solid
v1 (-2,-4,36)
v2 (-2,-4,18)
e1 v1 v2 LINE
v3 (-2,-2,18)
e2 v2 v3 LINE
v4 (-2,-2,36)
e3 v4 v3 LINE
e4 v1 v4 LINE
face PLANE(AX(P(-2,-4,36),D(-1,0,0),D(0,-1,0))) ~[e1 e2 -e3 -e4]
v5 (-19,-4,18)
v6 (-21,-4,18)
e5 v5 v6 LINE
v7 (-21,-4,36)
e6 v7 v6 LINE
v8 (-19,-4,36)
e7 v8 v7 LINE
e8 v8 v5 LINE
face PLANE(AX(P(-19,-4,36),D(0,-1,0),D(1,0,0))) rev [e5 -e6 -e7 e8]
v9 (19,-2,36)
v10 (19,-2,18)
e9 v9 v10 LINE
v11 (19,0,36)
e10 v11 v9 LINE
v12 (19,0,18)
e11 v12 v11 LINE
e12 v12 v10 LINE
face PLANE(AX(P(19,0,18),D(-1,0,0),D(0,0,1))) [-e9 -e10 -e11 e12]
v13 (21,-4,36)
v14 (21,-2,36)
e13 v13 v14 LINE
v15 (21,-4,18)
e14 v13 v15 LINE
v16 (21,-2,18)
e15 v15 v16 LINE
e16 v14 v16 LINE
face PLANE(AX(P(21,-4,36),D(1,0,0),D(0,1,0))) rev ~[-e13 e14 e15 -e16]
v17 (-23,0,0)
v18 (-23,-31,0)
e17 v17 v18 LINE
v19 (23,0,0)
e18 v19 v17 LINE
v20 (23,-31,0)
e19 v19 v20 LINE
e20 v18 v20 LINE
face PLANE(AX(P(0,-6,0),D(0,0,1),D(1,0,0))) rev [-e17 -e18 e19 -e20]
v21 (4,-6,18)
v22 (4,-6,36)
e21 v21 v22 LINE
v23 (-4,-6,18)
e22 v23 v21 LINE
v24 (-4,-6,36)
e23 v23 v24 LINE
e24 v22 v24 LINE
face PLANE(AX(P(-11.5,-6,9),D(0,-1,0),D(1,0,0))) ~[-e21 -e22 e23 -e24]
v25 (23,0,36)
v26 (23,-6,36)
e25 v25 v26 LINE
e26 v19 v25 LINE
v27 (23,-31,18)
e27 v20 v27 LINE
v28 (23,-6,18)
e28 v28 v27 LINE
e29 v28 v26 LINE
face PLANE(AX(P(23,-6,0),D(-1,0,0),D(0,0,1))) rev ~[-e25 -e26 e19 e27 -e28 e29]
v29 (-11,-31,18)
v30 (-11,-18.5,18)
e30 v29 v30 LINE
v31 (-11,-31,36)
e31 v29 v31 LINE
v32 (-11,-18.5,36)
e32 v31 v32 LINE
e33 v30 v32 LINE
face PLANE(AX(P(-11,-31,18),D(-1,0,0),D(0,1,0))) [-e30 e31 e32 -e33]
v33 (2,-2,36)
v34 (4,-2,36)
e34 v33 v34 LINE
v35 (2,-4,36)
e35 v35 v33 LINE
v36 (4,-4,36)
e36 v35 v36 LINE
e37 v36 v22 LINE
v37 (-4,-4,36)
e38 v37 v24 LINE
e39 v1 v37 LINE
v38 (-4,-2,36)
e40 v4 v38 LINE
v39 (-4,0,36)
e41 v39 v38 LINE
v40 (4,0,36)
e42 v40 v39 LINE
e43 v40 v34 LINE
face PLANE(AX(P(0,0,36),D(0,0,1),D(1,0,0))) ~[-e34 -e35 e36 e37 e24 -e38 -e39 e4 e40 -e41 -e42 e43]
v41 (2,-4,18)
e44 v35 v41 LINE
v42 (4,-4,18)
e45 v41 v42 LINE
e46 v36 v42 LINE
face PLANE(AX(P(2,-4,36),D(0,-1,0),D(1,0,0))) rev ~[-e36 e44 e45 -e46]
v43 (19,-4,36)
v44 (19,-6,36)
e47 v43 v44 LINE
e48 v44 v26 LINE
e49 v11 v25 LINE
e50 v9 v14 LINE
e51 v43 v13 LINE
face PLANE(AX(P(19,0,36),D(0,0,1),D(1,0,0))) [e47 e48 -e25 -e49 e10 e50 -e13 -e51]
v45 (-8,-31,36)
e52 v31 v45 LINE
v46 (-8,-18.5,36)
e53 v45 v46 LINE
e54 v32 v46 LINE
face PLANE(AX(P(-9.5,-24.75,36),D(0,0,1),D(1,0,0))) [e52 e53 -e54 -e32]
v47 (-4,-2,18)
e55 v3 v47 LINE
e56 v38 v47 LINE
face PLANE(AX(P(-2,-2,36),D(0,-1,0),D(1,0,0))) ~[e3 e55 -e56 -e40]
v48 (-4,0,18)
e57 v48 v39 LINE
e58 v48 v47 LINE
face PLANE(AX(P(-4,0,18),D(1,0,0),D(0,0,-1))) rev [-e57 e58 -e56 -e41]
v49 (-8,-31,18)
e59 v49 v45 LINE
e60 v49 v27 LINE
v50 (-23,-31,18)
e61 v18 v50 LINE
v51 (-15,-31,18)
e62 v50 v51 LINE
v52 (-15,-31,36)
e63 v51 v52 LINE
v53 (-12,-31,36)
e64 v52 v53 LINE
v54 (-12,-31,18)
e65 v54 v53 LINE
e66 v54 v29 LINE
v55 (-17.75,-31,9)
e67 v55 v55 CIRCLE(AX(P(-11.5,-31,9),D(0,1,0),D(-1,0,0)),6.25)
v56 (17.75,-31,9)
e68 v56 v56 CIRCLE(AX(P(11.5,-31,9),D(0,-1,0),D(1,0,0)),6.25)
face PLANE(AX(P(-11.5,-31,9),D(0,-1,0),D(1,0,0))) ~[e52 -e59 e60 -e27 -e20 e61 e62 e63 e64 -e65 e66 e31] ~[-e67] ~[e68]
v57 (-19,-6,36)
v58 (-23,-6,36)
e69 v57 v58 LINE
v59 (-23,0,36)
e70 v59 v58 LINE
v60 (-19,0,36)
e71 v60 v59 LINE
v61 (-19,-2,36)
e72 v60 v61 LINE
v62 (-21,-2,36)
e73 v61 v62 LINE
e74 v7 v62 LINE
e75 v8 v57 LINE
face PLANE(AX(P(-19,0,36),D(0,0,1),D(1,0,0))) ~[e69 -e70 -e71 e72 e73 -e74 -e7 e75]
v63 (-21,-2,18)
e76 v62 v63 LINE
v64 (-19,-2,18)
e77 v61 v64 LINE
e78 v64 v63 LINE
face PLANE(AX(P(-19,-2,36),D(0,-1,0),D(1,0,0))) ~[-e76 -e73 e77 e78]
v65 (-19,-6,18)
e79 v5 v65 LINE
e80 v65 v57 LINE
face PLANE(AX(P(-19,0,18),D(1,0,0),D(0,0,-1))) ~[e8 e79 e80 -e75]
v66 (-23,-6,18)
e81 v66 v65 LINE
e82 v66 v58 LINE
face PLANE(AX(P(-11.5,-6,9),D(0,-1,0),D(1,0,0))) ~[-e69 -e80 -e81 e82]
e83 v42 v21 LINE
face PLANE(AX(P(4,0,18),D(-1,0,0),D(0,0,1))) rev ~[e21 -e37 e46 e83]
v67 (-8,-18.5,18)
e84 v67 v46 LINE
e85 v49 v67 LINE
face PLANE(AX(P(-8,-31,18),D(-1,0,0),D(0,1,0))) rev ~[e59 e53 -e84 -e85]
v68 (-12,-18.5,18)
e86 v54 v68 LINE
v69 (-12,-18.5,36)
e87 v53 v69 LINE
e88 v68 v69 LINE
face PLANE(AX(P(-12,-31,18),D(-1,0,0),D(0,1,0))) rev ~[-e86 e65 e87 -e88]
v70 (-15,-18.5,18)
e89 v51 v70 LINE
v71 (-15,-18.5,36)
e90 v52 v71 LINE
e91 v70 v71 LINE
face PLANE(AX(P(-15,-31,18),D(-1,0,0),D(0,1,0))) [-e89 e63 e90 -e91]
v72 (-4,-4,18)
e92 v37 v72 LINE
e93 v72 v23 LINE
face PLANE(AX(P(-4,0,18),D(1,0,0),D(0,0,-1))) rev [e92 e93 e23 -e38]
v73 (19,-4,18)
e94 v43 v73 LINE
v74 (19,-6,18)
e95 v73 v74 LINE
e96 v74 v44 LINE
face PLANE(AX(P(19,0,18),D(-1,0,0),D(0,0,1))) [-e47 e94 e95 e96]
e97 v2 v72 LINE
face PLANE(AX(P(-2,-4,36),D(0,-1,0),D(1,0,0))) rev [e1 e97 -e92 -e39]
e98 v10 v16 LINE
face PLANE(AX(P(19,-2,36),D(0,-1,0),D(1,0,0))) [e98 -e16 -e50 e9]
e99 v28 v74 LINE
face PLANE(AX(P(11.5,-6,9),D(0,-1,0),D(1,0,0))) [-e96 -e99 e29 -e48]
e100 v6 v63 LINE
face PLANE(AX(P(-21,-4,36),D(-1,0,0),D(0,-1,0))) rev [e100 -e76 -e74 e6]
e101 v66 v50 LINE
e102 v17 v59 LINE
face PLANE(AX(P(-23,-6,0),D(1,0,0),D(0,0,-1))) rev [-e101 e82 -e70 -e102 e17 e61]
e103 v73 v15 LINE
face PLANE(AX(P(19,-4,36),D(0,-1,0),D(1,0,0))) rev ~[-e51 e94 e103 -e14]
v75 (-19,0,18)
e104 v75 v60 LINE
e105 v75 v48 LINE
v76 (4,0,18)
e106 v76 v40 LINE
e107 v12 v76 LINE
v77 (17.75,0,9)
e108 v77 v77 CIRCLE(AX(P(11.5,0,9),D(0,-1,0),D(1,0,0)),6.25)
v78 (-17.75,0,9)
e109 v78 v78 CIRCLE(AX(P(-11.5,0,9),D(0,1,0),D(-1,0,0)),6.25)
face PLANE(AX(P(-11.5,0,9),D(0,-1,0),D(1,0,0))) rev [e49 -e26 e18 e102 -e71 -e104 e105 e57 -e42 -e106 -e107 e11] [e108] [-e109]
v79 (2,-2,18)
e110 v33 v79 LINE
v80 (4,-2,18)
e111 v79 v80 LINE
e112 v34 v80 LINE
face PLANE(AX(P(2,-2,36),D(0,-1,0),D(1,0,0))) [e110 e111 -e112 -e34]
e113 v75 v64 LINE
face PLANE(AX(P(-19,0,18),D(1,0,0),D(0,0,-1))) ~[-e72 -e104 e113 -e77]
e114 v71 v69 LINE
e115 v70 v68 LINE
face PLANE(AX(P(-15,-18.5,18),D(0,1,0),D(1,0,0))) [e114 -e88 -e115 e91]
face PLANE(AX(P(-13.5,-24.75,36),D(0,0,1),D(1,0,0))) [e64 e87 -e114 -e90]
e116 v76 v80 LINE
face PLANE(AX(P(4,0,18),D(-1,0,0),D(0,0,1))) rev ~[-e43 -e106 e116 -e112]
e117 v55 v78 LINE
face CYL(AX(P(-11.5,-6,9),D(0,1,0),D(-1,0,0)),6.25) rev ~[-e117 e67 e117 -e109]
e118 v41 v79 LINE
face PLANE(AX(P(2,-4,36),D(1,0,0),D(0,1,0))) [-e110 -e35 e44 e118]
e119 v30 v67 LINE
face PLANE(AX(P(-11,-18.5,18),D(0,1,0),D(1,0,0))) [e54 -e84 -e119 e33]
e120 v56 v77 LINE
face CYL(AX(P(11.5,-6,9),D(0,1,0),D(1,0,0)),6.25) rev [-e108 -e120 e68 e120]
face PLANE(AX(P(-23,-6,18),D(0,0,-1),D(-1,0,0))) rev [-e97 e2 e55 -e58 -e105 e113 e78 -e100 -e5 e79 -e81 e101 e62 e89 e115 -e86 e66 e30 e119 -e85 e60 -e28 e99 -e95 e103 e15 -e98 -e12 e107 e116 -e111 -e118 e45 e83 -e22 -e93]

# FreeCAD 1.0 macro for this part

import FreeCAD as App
import Part
import Sketcher
Q = App.Units.Quantity

doc = App.newDocument("Part")
params = doc.addObject("Spreadsheet::Sheet", "Params")
for row, (alias, value) in enumerate([
    ("sketch1_diameter", "12.5 mm"),
    ("sketch1_width", "23 mm"),
    ("sketch1_width2", "4 mm"),
    ("sketch1_height", "36 mm"),
    ("sketch1_height2", "18 mm"),
    ("pad1_length", "6 mm"),
    ("sketch2_width", "2 mm"),
    ("pocket1_length", "18 mm"),
    ("sketch3_diameter", "12.5 mm"),
    ("sketch3_width", "23 mm"),
    ("sketch3_height", "18 mm"),
    ("pad2_length", "25 mm"),
    ("sketch4_width", "3 mm"),
    ("sketch4_height", "12.5 mm"),
    ("pad3_length", "18 mm"),
], start=1):
    params.set(f"A{row}", alias)
    params.set(f"B{row}", "=" + value)
    params.setAlias(f"B{row}", alias)

body = doc.addObject("PartDesign::Body", "Body")

sketch1 = body.newObject("Sketcher::SketchObject", "Sketch")
sketch1.AttachmentSupport = (doc.getObject("XZ_Plane"), [""])
sketch1.MapMode = "FlatFace"
sketch1.addGeometry([
    Part.LineSegment(App.Vector(0, 0, 0), App.Vector(23, 0, 0)),
    Part.LineSegment(App.Vector(23, 0, 0), App.Vector(23, 36, 0)),
    Part.LineSegment(App.Vector(23, 36, 0), App.Vector(19, 36, 0)),
    Part.LineSegment(App.Vector(19, 36, 0), App.Vector(19, 18, 0)),
    Part.LineSegment(App.Vector(19, 18, 0), App.Vector(4, 18, 0)),
    Part.LineSegment(App.Vector(4, 18, 0), App.Vector(4, 36, 0)),
    Part.LineSegment(App.Vector(4, 36, 0), App.Vector(0, 36, 0)),
    Part.LineSegment(App.Vector(0, 36, 0), App.Vector(0, 0, 0)),
    Part.Circle(App.Vector(11.5, 9, 0), App.Vector(0, 0, 1), 6.2),
], False)
sketch1.addConstraint([
    Sketcher.Constraint("Coincident", 0, 2, 1, 1),
    Sketcher.Constraint("Coincident", 1, 2, 2, 1),
    Sketcher.Constraint("Coincident", 2, 2, 3, 1),
    Sketcher.Constraint("Coincident", 3, 2, 4, 1),
    Sketcher.Constraint("Coincident", 4, 2, 5, 1),
    Sketcher.Constraint("Coincident", 5, 2, 6, 1),
    Sketcher.Constraint("Coincident", 6, 2, 7, 1),
    Sketcher.Constraint("Coincident", 7, 2, 0, 1),
    Sketcher.Constraint("Horizontal", 0),
    Sketcher.Constraint("Vertical", 1),
    Sketcher.Constraint("Horizontal", 2),
    Sketcher.Constraint("Vertical", 3),
    Sketcher.Constraint("Horizontal", 4),
    Sketcher.Constraint("Vertical", 5),
    Sketcher.Constraint("Horizontal", 6),
    Sketcher.Constraint("Vertical", 7),
    Sketcher.Constraint("Coincident", 7, 2, -1, 1),
    Sketcher.Constraint("Horizontal", 2, 2, 5, 2),
    Sketcher.Constraint("Equal", 2, 6),
    Sketcher.Constraint("Diameter", 8, Q("12.5 mm")),
    Sketcher.Constraint("DistanceX", 0, 1, 0, 2, Q("23 mm")),
    Sketcher.Constraint("DistanceX", 2, 2, 2, 1, Q("4 mm")),
    Sketcher.Constraint("DistanceY", 1, 1, 1, 2, Q("36 mm")),
    Sketcher.Constraint("DistanceY", 3, 2, 3, 1, Q("18 mm")),
    Sketcher.Constraint("DistanceY", -1, 1, 8, 3, Q("9 mm")),
    Sketcher.Constraint("DistanceX", -1, 1, 8, 3, Q("11.5 mm")),
])
sketch1.setExpression("Constraints[19]", "Params.sketch1_diameter")
sketch1.setExpression("Constraints[20]", "Params.sketch1_width")
sketch1.setExpression("Constraints[21]", "Params.sketch1_width2")
sketch1.setExpression("Constraints[22]", "Params.sketch1_height")
sketch1.setExpression("Constraints[23]", "Params.sketch1_height2")
pad1 = body.newObject("PartDesign::Pad", "Pad")
pad1.Profile = sketch1
pad1.setExpression("Length", "Params.pad1_length")

sketch2 = body.newObject("Sketcher::SketchObject", "Sketch001")
sketch2.AttachmentSupport = (doc.getObject("XY_Plane"), [""])
sketch2.MapMode = "FlatFace"
sketch2.AttachmentOffset = App.Placement(App.Vector(0, 0, 36), App.Rotation())
sketch2.addGeometry([
    Part.LineSegment(App.Vector(19, -2, 0), App.Vector(19, -4, 0)),
    Part.LineSegment(App.Vector(19, -4, 0), App.Vector(21, -4, 0)),
    Part.LineSegment(App.Vector(21, -4, 0), App.Vector(21, -2, 0)),
    Part.LineSegment(App.Vector(21, -2, 0), App.Vector(19, -2, 0)),
    Part.LineSegment(App.Vector(2, -2, 0), App.Vector(2, -4, 0)),
    Part.LineSegment(App.Vector(2, -4, 0), App.Vector(4, -4, 0)),
    Part.LineSegment(App.Vector(4, -4, 0), App.Vector(4, -2, 0)),
    Part.LineSegment(App.Vector(4, -2, 0), App.Vector(2, -2, 0)),
], False)
sketch2.addConstraint([
    Sketcher.Constraint("Coincident", 0, 2, 1, 1),
    Sketcher.Constraint("Coincident", 1, 2, 2, 1),
    Sketcher.Constraint("Coincident", 2, 2, 3, 1),
    Sketcher.Constraint("Coincident", 3, 2, 0, 1),
    Sketcher.Constraint("Coincident", 4, 2, 5, 1),
    Sketcher.Constraint("Coincident", 5, 2, 6, 1),
    Sketcher.Constraint("Coincident", 6, 2, 7, 1),
    Sketcher.Constraint("Coincident", 7, 2, 4, 1),
    Sketcher.Constraint("Vertical", 0),
    Sketcher.Constraint("Horizontal", 1),
    Sketcher.Constraint("Vertical", 2),
    Sketcher.Constraint("Horizontal", 3),
    Sketcher.Constraint("Vertical", 4),
    Sketcher.Constraint("Horizontal", 5),
    Sketcher.Constraint("Vertical", 6),
    Sketcher.Constraint("Horizontal", 7),
    Sketcher.Constraint("Horizontal", 1, 2, 4, 2),
    Sketcher.Constraint("Horizontal", 3, 2, 6, 2),
    Sketcher.Constraint("Equal", 3, 5),
    Sketcher.Constraint("Equal", 7, 0),
    Sketcher.Constraint("DistanceX", 1, 1, 1, 2, Q("2 mm")),
    Sketcher.Constraint("DistanceX", -1, 1, 0, 2, Q("19 mm")),
    Sketcher.Constraint("DistanceY", 0, 2, -1, 1, Q("4 mm")),
    Sketcher.Constraint("DistanceX", -1, 1, 4, 2, Q("2 mm")),
])
sketch2.setExpression("Constraints[20]", "Params.sketch2_width")
pocket1 = body.newObject("PartDesign::Pocket", "Pocket")
pocket1.Profile = sketch2
pocket1.setExpression("Length", "Params.pocket1_length")

sketch3 = body.newObject("Sketcher::SketchObject", "Sketch002")
sketch3.AttachmentSupport = (doc.getObject("XZ_Plane"), [""])
sketch3.MapMode = "FlatFace"
sketch3.AttachmentOffset = App.Placement(App.Vector(0, 0, 6), App.Rotation())
sketch3.addGeometry([
    Part.LineSegment(App.Vector(0, 18, 0), App.Vector(0, 0, 0)),
    Part.LineSegment(App.Vector(0, 0, 0), App.Vector(23, 0, 0)),
    Part.LineSegment(App.Vector(23, 0, 0), App.Vector(23, 18, 0)),
    Part.LineSegment(App.Vector(23, 18, 0), App.Vector(0, 18, 0)),
    Part.Circle(App.Vector(12, 9, 0), App.Vector(0, 0, 1), 6),
], False)
sketch3.addConstraint([
    Sketcher.Constraint("Coincident", 0, 2, 1, 1),
    Sketcher.Constraint("Coincident", 1, 2, 2, 1),
    Sketcher.Constraint("Coincident", 2, 2, 3, 1),
    Sketcher.Constraint("Coincident", 3, 2, 0, 1),
    Sketcher.Constraint("Vertical", 0),
    Sketcher.Constraint("Horizontal", 1),
    Sketcher.Constraint("Vertical", 2),
    Sketcher.Constraint("Horizontal", 3),
    Sketcher.Constraint("Coincident", 0, 2, -1, 1),
    Sketcher.Constraint("Diameter", 4, Q("12.5 mm")),
    Sketcher.Constraint("DistanceX", 1, 1, 1, 2, Q("23 mm")),
    Sketcher.Constraint("DistanceY", 0, 2, 0, 1, Q("18 mm")),
    Sketcher.Constraint("DistanceY", -1, 1, 4, 3, Q("9 mm")),
    Sketcher.Constraint("DistanceX", -1, 1, 4, 3, Q("11.5 mm")),
])
sketch3.setExpression("Constraints[9]", "Params.sketch3_diameter")
sketch3.setExpression("Constraints[10]", "Params.sketch3_width")
sketch3.setExpression("Constraints[11]", "Params.sketch3_height")
pad2 = body.newObject("PartDesign::Pad", "Pad001")
pad2.Profile = sketch3
pad2.setExpression("Length", "Params.pad2_length")
body2 = doc.addObject("PartDesign::Body", "Body001")
doc.recompute()

body2.BaseFeature = body
doc.recompute()

mirroring = doc.addObject("Part::Mirroring", "Mirroring")
mirroring.Source = body
mirroring.Base = App.Vector(0, 0, 0)
mirroring.Normal = App.Vector(1, 0, 0)
body3 = doc.addObject("PartDesign::Body", "Body002")
body3.BaseFeature = mirroring
boolean = body2.newObject("PartDesign::Boolean", "Boolean")
boolean.Type = "Fuse"
boolean.addObjects([body3])
doc.recompute()

sketch4 = body2.newObject("Sketcher::SketchObject", "Sketch003")
sketch4.AttachmentSupport = (doc.getObject("XY_Plane001"), [""])
sketch4.MapMode = "FlatFace"
sketch4.AttachmentOffset = App.Placement(App.Vector(0, 0, 18), App.Rotation())
sketch4.addGeometry([
    Part.LineSegment(App.Vector(-15, -18.5, 0), App.Vector(-15, -31, 0)),
    Part.LineSegment(App.Vector(-15, -31, 0), App.Vector(-12, -31, 0)),
    Part.LineSegment(App.Vector(-12, -31, 0), App.Vector(-12, -18.5, 0)),
    Part.LineSegment(App.Vector(-12, -18.5, 0), App.Vector(-15, -18.5, 0)),
    Part.LineSegment(App.Vector(-11, -18.5, 0), App.Vector(-11, -31, 0)),
    Part.LineSegment(App.Vector(-11, -31, 0), App.Vector(-8, -31, 0)),
    Part.LineSegment(App.Vector(-8, -31, 0), App.Vector(-8, -18.5, 0)),
    Part.LineSegment(App.Vector(-8, -18.5, 0), App.Vector(-11, -18.5, 0)),
], False)
sketch4.addConstraint([
    Sketcher.Constraint("Coincident", 0, 2, 1, 1),
    Sketcher.Constraint("Coincident", 1, 2, 2, 1),
    Sketcher.Constraint("Coincident", 2, 2, 3, 1),
    Sketcher.Constraint("Coincident", 3, 2, 0, 1),
    Sketcher.Constraint("Coincident", 4, 2, 5, 1),
    Sketcher.Constraint("Coincident", 5, 2, 6, 1),
    Sketcher.Constraint("Coincident", 6, 2, 7, 1),
    Sketcher.Constraint("Coincident", 7, 2, 4, 1),
    Sketcher.Constraint("Vertical", 0),
    Sketcher.Constraint("Horizontal", 1),
    Sketcher.Constraint("Vertical", 2),
    Sketcher.Constraint("Horizontal", 3),
    Sketcher.Constraint("Vertical", 4),
    Sketcher.Constraint("Horizontal", 5),
    Sketcher.Constraint("Vertical", 6),
    Sketcher.Constraint("Horizontal", 7),
    Sketcher.Constraint("Horizontal", 1, 2, 4, 2),
    Sketcher.Constraint("Horizontal", 3, 2, 6, 2),
    Sketcher.Constraint("Equal", 3, 5),
    Sketcher.Constraint("DistanceX", 1, 1, 1, 2, Q("3 mm")),
    Sketcher.Constraint("DistanceY", 0, 2, 0, 1, Q("12.5 mm")),
    Sketcher.Constraint("DistanceX", 0, 2, -1, 1, Q("15 mm")),
    Sketcher.Constraint("DistanceY", 0, 2, -1, 1, Q("31 mm")),
    Sketcher.Constraint("DistanceX", 4, 2, -1, 1, Q("11 mm")),
])
sketch4.setExpression("Constraints[19]", "Params.sketch4_width")
sketch4.setExpression("Constraints[20]", "Params.sketch4_height")
pad3 = body2.newObject("PartDesign::Pad", "Pad002")
pad3.Profile = sketch4
pad3.setExpression("Length", "Params.pad3_length")
mirroring.Visibility = False

doc.recompute()
